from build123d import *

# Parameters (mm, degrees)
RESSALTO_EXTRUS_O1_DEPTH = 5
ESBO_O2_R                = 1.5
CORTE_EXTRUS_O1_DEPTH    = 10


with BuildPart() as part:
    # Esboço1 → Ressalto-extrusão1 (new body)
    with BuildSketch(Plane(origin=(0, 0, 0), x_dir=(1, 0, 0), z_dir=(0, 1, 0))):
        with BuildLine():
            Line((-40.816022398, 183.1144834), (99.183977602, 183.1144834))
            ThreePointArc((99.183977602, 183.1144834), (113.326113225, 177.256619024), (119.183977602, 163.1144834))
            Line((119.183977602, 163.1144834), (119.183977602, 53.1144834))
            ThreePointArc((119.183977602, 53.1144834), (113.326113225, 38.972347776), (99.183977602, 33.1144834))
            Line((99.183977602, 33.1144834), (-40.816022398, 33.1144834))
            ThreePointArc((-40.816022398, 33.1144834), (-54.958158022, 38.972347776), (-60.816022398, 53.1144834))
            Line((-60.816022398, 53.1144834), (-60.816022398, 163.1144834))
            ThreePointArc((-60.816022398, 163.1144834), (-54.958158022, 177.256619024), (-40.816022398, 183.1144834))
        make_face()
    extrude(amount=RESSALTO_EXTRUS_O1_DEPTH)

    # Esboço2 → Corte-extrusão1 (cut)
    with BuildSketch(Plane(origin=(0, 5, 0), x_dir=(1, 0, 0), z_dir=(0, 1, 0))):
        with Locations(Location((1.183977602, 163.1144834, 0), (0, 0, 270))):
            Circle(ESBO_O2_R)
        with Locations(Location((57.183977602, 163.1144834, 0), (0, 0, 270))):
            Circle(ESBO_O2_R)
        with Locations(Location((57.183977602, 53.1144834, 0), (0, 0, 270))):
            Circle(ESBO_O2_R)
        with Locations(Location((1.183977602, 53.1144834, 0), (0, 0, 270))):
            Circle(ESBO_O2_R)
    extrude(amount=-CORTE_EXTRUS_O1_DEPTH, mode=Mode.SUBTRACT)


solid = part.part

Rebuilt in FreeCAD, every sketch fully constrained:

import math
import FreeCAD as App
import Part
import Sketcher

doc = App.newDocument("Part")
body = doc.addObject("PartDesign::Body", "Body")

# Sketch on XZ plane
sketch1 = body.newObject("Sketcher::SketchObject", "Sketch")
sketch1.AttachmentSupport = (doc.getObject("XZ_Plane"), [""])
sketch1.MapMode = "FlatFace"
sketch1.addGeometry(Part.LineSegment(App.Vector(99.183978, -183.114483, 0), App.Vector(-40.816022, -183.114483, 0)), False)
sketch1.addGeometry(Part.ArcOfCircle(Part.Circle(App.Vector(-40.816022, -163.114483, 0), App.Vector(0, 0, 1), 20), math.radians(180), math.radians(270)), False)
sketch1.addGeometry(Part.LineSegment(App.Vector(-60.816022, -163.114483, 0), App.Vector(-60.816022, -53.114483, 0)), False)
sketch1.addGeometry(Part.ArcOfCircle(Part.Circle(App.Vector(-40.816022, -53.114483, 0), App.Vector(0, 0, 1), 20), math.radians(90), math.radians(180)), False)
sketch1.addGeometry(Part.LineSegment(App.Vector(-40.816022, -33.114483, 0), App.Vector(99.183978, -33.114483, 0)), False)
sketch1.addGeometry(Part.ArcOfCircle(Part.Circle(App.Vector(99.183978, -53.114483, 0), App.Vector(0, 0, 1), 20), math.radians(0), math.radians(90)), False)
sketch1.addGeometry(Part.LineSegment(App.Vector(119.183978, -53.114483, 0), App.Vector(119.183978, -163.114483, 0)), False)
sketch1.addGeometry(Part.ArcOfCircle(Part.Circle(App.Vector(99.183978, -163.114483, 0), App.Vector(0, 0, 1), 20), math.radians(-90), math.radians(0)), False)
sketch1.addConstraint(Sketcher.Constraint("Tangent", 0, 2, 1, 2))
sketch1.addConstraint(Sketcher.Constraint("Tangent", 1, 1, 2, 1))
sketch1.addConstraint(Sketcher.Constraint("Tangent", 2, 2, 3, 2))
sketch1.addConstraint(Sketcher.Constraint("Tangent", 3, 1, 4, 1))
sketch1.addConstraint(Sketcher.Constraint("Tangent", 4, 2, 5, 2))
sketch1.addConstraint(Sketcher.Constraint("Tangent", 5, 1, 6, 1))
sketch1.addConstraint(Sketcher.Constraint("Tangent", 6, 2, 7, 2))
sketch1.addConstraint(Sketcher.Constraint("Tangent", 7, 1, 0, 1))
sketch1.addConstraint(Sketcher.Constraint("Horizontal", 0))
sketch1.addConstraint(Sketcher.Constraint("Vertical", 2))
sketch1.addConstraint(Sketcher.Constraint("Horizontal", 4))
sketch1.addConstraint(Sketcher.Constraint("Vertical", 6))
sketch1.addConstraint(Sketcher.Constraint("Equal", 1, 3))
sketch1.addConstraint(Sketcher.Constraint("Equal", 3, 5))
sketch1.addConstraint(Sketcher.Constraint("Equal", 5, 7))
sketch1.addConstraint(Sketcher.Constraint("Radius", 1, 20.0))
sketch1.addConstraint(Sketcher.Constraint("DistanceX", 0, 2, 0, 1, 140.0))
sketch1.addConstraint(Sketcher.Constraint("DistanceY", 2, 1, 2, 2, 110.0))
sketch1.addConstraint(Sketcher.Constraint("DistanceX", 1, 3, -1, 1, 40.816022))
sketch1.addConstraint(Sketcher.Constraint("DistanceY", 1, 3, -1, 1, 163.114483))
pad1 = body.newObject("PartDesign::Pad", "Pad")
pad1.Profile = sketch1
pad1.Length = 5
pad1.Reversed = True

# Sketch on XZ plane
sketch2 = body.newObject("Sketcher::SketchObject", "Sketch001")
sketch2.AttachmentSupport = (doc.getObject("XZ_Plane"), [""])
sketch2.MapMode = "FlatFace"
sketch2.AttachmentOffset = App.Placement(App.Vector(0, 0, -5), App.Rotation())
sketch2.addGeometry(Part.Circle(App.Vector(1.183978, -163.114483, 0), App.Vector(0, 0, 1), 1.5), False)
sketch2.addGeometry(Part.Circle(App.Vector(57.183978, -163.114483, 0), App.Vector(0, 0, 1), 1.5), False)
sketch2.addGeometry(Part.Circle(App.Vector(57.183978, -53.114483, 0), App.Vector(0, 0, 1), 1.5), False)
sketch2.addGeometry(Part.Circle(App.Vector(1.183978, -53.114483, 0), App.Vector(0, 0, 1), 1.5), False)
sketch2.addConstraint(Sketcher.Constraint("Equal", 0, 1))
sketch2.addConstraint(Sketcher.Constraint("Equal", 1, 2))
sketch2.addConstraint(Sketcher.Constraint("Equal", 2, 3))
sketch2.addConstraint(Sketcher.Constraint("Horizontal", 0, 3, 1, 3))
sketch2.addConstraint(Sketcher.Constraint("Horizontal", 2, 3, 3, 3))
sketch2.addConstraint(Sketcher.Constraint("Vertical", 1, 3, 2, 3))
sketch2.addConstraint(Sketcher.Constraint("Vertical", 0, 3, 3, 3))
sketch2.addConstraint(Sketcher.Constraint("Diameter", 0, 3.0))
sketch2.addConstraint(Sketcher.Constraint("DistanceX", 0, 3, 1, 3, 56.0))
sketch2.addConstraint(Sketcher.Constraint("DistanceY", 1, 3, 2, 3, 110.0))
sketch2.addConstraint(Sketcher.Constraint("DistanceX", -1, 1, 0, 3, 1.183978))
sketch2.addConstraint(Sketcher.Constraint("DistanceY", 0, 3, -1, 1, 163.114483))
pocket1 = body.newObject("PartDesign::Pocket", "Pocket")
pocket1.Profile = sketch2
pocket1.Length = 10
pocket1.Reversed = True

doc.recompute()
